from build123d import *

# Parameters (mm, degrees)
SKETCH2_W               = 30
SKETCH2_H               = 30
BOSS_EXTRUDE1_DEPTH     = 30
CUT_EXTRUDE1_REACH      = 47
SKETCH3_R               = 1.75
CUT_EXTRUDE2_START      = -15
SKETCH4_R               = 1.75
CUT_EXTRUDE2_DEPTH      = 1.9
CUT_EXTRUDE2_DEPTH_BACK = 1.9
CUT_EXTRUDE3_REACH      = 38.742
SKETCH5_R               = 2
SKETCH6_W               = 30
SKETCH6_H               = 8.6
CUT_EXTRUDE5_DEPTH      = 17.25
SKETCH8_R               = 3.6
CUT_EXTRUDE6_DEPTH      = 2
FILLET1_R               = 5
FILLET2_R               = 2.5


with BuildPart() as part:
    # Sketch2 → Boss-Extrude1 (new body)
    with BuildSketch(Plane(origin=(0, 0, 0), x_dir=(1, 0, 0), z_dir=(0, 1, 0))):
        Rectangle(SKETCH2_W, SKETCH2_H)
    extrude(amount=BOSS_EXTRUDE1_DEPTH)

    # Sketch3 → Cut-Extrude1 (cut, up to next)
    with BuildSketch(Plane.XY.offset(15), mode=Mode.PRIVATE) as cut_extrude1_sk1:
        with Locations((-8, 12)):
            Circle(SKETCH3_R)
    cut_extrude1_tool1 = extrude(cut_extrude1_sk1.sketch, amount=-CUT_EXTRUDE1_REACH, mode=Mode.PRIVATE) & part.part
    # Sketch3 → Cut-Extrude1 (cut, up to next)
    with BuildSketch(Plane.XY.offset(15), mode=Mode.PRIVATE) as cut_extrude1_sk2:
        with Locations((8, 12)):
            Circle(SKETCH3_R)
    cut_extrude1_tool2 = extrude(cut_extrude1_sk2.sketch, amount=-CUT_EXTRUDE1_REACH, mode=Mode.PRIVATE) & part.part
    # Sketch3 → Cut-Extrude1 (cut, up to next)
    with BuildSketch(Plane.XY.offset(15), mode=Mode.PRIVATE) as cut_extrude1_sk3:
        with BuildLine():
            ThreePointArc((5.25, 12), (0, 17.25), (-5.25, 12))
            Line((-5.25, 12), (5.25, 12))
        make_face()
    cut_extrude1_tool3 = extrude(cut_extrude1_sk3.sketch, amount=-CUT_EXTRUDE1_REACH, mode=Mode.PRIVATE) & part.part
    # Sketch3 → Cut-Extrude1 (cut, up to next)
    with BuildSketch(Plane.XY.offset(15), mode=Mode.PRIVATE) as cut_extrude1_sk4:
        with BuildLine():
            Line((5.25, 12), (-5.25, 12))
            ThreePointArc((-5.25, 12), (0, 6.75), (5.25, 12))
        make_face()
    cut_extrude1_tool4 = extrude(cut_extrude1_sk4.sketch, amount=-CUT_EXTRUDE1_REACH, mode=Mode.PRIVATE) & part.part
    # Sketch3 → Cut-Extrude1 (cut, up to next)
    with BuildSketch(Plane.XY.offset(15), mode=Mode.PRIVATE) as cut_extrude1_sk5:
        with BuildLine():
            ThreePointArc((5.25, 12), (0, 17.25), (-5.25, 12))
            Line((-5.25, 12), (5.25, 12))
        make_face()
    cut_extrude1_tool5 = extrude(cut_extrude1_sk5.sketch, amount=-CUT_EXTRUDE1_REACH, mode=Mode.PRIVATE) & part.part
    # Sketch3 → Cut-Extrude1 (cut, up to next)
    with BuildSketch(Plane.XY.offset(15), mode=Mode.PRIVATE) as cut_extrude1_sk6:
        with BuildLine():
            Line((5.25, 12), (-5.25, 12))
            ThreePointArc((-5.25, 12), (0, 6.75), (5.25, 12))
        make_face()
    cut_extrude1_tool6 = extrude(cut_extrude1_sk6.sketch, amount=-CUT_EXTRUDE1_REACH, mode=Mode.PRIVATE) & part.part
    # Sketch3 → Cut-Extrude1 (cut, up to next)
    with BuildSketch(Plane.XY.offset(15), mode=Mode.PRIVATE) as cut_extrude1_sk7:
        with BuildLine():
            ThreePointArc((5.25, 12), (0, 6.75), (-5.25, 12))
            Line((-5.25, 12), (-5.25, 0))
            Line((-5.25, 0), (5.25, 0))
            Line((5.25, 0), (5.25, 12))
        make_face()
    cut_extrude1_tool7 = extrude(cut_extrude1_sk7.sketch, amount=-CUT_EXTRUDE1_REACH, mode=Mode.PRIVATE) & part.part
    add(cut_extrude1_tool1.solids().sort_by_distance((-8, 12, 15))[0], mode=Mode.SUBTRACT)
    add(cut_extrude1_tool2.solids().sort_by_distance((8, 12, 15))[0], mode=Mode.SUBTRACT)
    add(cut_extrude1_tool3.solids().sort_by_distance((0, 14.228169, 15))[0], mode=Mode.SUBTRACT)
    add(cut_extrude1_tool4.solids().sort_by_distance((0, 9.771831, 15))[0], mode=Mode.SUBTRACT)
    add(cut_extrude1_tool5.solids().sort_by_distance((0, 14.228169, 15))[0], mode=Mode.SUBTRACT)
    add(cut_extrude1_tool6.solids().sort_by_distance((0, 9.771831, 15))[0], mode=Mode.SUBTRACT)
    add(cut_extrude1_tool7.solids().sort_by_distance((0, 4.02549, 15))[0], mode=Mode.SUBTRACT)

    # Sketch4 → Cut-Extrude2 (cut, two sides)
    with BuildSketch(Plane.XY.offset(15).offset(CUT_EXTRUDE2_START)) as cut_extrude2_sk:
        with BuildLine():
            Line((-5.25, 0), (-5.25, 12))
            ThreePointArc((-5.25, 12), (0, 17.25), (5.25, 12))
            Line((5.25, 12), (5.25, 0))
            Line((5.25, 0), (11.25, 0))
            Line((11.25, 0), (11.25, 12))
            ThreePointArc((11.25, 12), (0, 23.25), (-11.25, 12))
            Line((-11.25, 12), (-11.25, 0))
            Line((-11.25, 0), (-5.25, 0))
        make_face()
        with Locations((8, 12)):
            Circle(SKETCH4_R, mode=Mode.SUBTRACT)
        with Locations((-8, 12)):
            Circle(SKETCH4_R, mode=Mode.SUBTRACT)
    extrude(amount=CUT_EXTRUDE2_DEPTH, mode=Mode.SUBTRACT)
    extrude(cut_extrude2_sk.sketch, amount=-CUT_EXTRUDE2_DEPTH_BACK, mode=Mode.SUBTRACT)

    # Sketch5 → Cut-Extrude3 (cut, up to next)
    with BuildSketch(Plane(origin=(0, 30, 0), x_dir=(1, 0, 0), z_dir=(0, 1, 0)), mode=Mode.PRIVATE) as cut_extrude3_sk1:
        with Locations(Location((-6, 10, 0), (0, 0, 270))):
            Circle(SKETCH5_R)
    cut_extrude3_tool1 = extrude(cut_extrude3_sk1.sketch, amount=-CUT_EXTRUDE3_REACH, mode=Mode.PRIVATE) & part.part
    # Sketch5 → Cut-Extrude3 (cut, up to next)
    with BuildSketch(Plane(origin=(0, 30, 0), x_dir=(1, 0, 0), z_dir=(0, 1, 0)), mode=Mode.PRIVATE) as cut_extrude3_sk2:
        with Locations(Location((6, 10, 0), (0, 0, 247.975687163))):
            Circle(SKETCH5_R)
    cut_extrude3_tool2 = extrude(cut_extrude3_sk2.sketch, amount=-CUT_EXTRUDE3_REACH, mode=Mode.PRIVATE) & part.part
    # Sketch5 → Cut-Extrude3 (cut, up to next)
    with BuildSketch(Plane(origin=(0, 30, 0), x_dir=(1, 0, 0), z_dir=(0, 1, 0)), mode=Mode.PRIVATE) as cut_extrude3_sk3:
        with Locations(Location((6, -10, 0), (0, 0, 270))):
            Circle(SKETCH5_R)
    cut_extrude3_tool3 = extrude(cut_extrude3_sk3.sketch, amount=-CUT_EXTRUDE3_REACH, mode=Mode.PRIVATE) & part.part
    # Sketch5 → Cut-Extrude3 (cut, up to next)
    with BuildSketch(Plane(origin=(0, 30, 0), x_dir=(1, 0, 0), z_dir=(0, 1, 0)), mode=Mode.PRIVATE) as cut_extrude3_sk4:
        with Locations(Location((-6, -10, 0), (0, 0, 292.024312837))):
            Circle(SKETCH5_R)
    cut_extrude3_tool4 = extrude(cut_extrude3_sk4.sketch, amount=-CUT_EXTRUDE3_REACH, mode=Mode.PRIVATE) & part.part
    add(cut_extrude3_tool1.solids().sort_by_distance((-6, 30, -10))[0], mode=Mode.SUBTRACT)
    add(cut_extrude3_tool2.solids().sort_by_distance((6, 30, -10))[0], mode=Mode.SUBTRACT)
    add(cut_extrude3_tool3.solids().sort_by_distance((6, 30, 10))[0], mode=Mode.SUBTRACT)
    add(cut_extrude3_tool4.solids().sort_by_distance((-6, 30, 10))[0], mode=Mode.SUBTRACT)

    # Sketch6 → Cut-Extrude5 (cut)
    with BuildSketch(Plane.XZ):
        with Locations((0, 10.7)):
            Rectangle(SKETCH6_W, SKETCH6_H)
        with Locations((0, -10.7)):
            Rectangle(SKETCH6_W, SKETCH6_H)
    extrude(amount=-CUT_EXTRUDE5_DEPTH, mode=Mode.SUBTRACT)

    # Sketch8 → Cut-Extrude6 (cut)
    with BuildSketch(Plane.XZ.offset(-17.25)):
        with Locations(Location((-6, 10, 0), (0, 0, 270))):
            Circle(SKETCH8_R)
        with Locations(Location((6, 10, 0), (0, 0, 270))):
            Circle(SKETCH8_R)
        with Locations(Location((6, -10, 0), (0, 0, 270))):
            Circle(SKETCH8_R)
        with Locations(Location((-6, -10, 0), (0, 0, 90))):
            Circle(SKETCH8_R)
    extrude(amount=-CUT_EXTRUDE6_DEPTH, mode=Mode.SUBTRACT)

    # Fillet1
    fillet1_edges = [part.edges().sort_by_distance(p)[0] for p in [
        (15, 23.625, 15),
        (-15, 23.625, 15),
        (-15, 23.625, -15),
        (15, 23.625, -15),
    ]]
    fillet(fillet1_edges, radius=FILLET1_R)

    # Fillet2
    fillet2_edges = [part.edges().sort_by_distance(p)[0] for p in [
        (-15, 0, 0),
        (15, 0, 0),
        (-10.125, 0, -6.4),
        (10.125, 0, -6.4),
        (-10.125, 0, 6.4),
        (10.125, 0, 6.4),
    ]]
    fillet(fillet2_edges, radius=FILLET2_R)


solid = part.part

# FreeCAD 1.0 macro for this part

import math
import FreeCAD as App
import Part
import Sketcher
from FreeCAD import Vector
Q = App.Units.Quantity


def edges_at(feature, points):
    """Names of the edges that pass closest to the given points."""
    edges = feature.Shape.Edges
    near = lambda p: min(range(len(edges)), key=lambda i: edges[i].distToShape(Part.Vertex(*p))[0])
    return sorted({f"Edge{near(p) + 1}" for p in points})


def add_polygon(sketch, points):
    """Adds a closed chain of lines whose ends are joined by coincident constraints."""
    first, n = sketch.GeometryCount, len(points)
    for a, b in zip(points, points[1:] + points[:1]):
        sketch.addGeometry(Part.LineSegment(App.Vector(*a, 0), App.Vector(*b, 0)), False)
    for i in range(n):
        sketch.addConstraint(Sketcher.Constraint("Coincident", first + i, 2, first + (i + 1) % n, 1))

doc = App.newDocument("Part")
body = doc.addObject("PartDesign::Body", "Body")

# Sketch on XZ plane
sketch1 = doc.addObject("Sketcher::SketchObject", "Sketch")
body.addObject(sketch1)
sketch1.AttachmentSupport = (doc.XZ_Plane, [""])
sketch1.MapMode = "FlatFace"
add_polygon(sketch1, [(-15, -15), (-15, 15), (15, 15), (15, -15)])  # lines 0-3
sketch1.addConstraint([
    Sketcher.Constraint("Vertical", 0),
    Sketcher.Constraint("Horizontal", 1),
    Sketcher.Constraint("Vertical", 2),
    Sketcher.Constraint("Horizontal", 3),
    Sketcher.Constraint("Symmetric", 0, 2, 2, 2, -1, 1),
    Sketcher.Constraint("Equal", 3, 0),
    Sketcher.Constraint("DistanceX", 1, 1, 1, 2, Q("30 mm")),
])
pad1 = doc.addObject("PartDesign::Pad", "Pad")
body.addObject(pad1)
pad1.Profile = sketch1
pad1.Length = 30
pad1.Reversed = True

# Sketch on XY plane
sketch2 = doc.addObject("Sketcher::SketchObject", "Sketch001")
body.addObject(sketch2)
sketch2.AttachmentSupport = (doc.XY_Plane, [""])
sketch2.MapMode = "FlatFace"
sketch2.AttachmentOffset = App.Placement(Vector(0, 0, 15), App.Rotation())
sketch2.addGeometry(Part.Circle(Vector(-8, 12, 0), Vector(0, 0, 1), 1.8), False)
sketch2.addConstraint([
    Sketcher.Constraint("Diameter", 0, Q("3.5 mm")),
    Sketcher.Constraint("DistanceX", 0, 3, -1, 1, Q("8 mm")),
    Sketcher.Constraint("DistanceY", -1, 1, 0, 3, Q("12 mm")),
])
pocket1 = doc.addObject("PartDesign::Pocket", "Pocket")
body.addObject(pocket1)
pocket1.Profile = sketch2
pocket1.Type = "UpToFirst"

# Sketch on XY plane
sketch3 = doc.addObject("Sketcher::SketchObject", "Sketch002")
body.addObject(sketch3)
sketch3.AttachmentSupport = (doc.XY_Plane, [""])
sketch3.MapMode = "FlatFace"
sketch3.AttachmentOffset = App.Placement(Vector(0, 0, 15), App.Rotation())
sketch3.addGeometry(Part.Circle(Vector(8, 12, 0), Vector(0, 0, 1), 1.8), False)
sketch3.addConstraint([
    Sketcher.Constraint("Diameter", 0, Q("3.5 mm")),
    Sketcher.Constraint("DistanceX", -1, 1, 0, 3, Q("8 mm")),
    Sketcher.Constraint("DistanceY", -1, 1, 0, 3, Q("12 mm")),
])
pocket2 = doc.addObject("PartDesign::Pocket", "Pocket001")
body.addObject(pocket2)
pocket2.Profile = sketch3
pocket2.Type = "UpToFirst"

# Sketch on XY plane
sketch4 = doc.addObject("Sketcher::SketchObject", "Sketch003")
body.addObject(sketch4)
sketch4.AttachmentSupport = (doc.XY_Plane, [""])
sketch4.MapMode = "FlatFace"
sketch4.AttachmentOffset = App.Placement(Vector(0, 0, 15), App.Rotation())
sketch4.addGeometry([
    Part.ArcOfCircle(Part.Circle(Vector(0, 12, 0), Vector(0, 0, 1), 5), math.radians(0), math.radians(180)),
    Part.LineSegment(Vector(-5, 12, 0), Vector(5, 12, 0)),
], False)
sketch4.addConstraint([
    Sketcher.Constraint("Coincident", 0, 1, 1, 2),
    Sketcher.Constraint("Coincident", 1, 1, 0, 2),
    Sketcher.Constraint("Horizontal", 1),
    Sketcher.Constraint("PointOnObject", 0, 3, -2),
    Sketcher.Constraint("Radius", 0, Q("5.25 mm")),
    Sketcher.Constraint("DistanceY", -1, 1, 0, 3, Q("12 mm")),
    Sketcher.Constraint("DistanceY", -1, 1, 0, 1, Q("12 mm")),
])
pocket3 = doc.addObject("PartDesign::Pocket", "Pocket002")
body.addObject(pocket3)
pocket3.Profile = sketch4
pocket3.Type = "UpToFirst"

# Sketch on XY plane
sketch5 = doc.addObject("Sketcher::SketchObject", "Sketch004")
body.addObject(sketch5)
sketch5.AttachmentSupport = (doc.XY_Plane, [""])
sketch5.MapMode = "FlatFace"
sketch5.AttachmentOffset = App.Placement(Vector(0, 0, 15), App.Rotation())
sketch5.addGeometry([
    Part.LineSegment(Vector(5, 12, 0), Vector(-5, 12, 0)),
    Part.ArcOfCircle(Part.Circle(Vector(0, 12, 0), Vector(0, 0, 1), 5), math.radians(180), math.radians(360)),
], False)
sketch5.addConstraint([
    Sketcher.Constraint("Coincident", 0, 1, 1, 2),
    Sketcher.Constraint("Coincident", 1, 1, 0, 2),
    Sketcher.Constraint("Horizontal", 0),
    Sketcher.Constraint("PointOnObject", 1, 3, -2),
    Sketcher.Constraint("Horizontal", 1, 3, 0, 1),
    Sketcher.Constraint("Radius", 1, Q("5.25 mm")),
    Sketcher.Constraint("DistanceY", -1, 1, 1, 3, Q("12 mm")),
])
pocket4 = doc.addObject("PartDesign::Pocket", "Pocket003")
body.addObject(pocket4)
pocket4.Profile = sketch5
pocket4.Type = "UpToFirst"

# Sketch on XY plane
sketch6 = doc.addObject("Sketcher::SketchObject", "Sketch005")
body.addObject(sketch6)
sketch6.AttachmentSupport = (doc.XY_Plane, [""])
sketch6.MapMode = "FlatFace"
sketch6.AttachmentOffset = App.Placement(Vector(0, 0, 15), App.Rotation())
sketch6.addGeometry([
    Part.ArcOfCircle(Part.Circle(Vector(0, 12, 0), Vector(0, 0, 1), 5), math.radians(0), math.radians(180)),
    Part.LineSegment(Vector(-5, 12, 0), Vector(5, 12, 0)),
], False)
sketch6.addConstraint([
    Sketcher.Constraint("Coincident", 0, 1, 1, 2),
    Sketcher.Constraint("Coincident", 1, 1, 0, 2),
    Sketcher.Constraint("Horizontal", 1),
    Sketcher.Constraint("PointOnObject", 0, 3, -2),
    Sketcher.Constraint("Radius", 0, Q("5.25 mm")),
    Sketcher.Constraint("DistanceY", -1, 1, 0, 3, Q("12 mm")),
    Sketcher.Constraint("DistanceY", -1, 1, 0, 1, Q("12 mm")),
])
pocket5 = doc.addObject("PartDesign::Pocket", "Pocket004")
body.addObject(pocket5)
pocket5.Profile = sketch6
pocket5.Length = 30

# Sketch on XY plane
sketch7 = doc.addObject("Sketcher::SketchObject", "Sketch006")
body.addObject(sketch7)
sketch7.AttachmentSupport = (doc.XY_Plane, [""])
sketch7.MapMode = "FlatFace"
sketch7.AttachmentOffset = App.Placement(Vector(0, 0, 15), App.Rotation())
sketch7.addGeometry([
    Part.LineSegment(Vector(5, 12, 0), Vector(-5, 12, 0)),
    Part.ArcOfCircle(Part.Circle(Vector(0, 12, 0), Vector(0, 0, 1), 5), math.radians(180), math.radians(360)),
], False)
sketch7.addConstraint([
    Sketcher.Constraint("Coincident", 0, 1, 1, 2),
    Sketcher.Constraint("Coincident", 1, 1, 0, 2),
    Sketcher.Constraint("Horizontal", 0),
    Sketcher.Constraint("PointOnObject", 1, 3, -2),
    Sketcher.Constraint("Horizontal", 1, 3, 0, 1),
    Sketcher.Constraint("Radius", 1, Q("5.25 mm")),
    Sketcher.Constraint("DistanceY", -1, 1, 1, 3, Q("12 mm")),
])
pocket6 = doc.addObject("PartDesign::Pocket", "Pocket005")
body.addObject(pocket6)
pocket6.Profile = sketch7
pocket6.Length = 30

# Sketch on XY plane
sketch8 = doc.addObject("Sketcher::SketchObject", "Sketch007")
body.addObject(sketch8)
sketch8.AttachmentSupport = (doc.XY_Plane, [""])
sketch8.MapMode = "FlatFace"
sketch8.AttachmentOffset = App.Placement(Vector(0, 0, 15), App.Rotation())
sketch8.addGeometry([
    Part.ArcOfCircle(Part.Circle(Vector(0, 12, 0), Vector(0, 0, 1), 5), math.radians(180), math.radians(360)),
    Part.LineSegment(Vector(-5, 12, 0), Vector(-5, 0, 0)),
    Part.LineSegment(Vector(-5, 0, 0), Vector(5, 0, 0)),
    Part.LineSegment(Vector(5, 0, 0), Vector(5, 12, 0)),
], False)
sketch8.addConstraint([
    Sketcher.Constraint("Tangent", 0, 1, 1, 1),
    Sketcher.Constraint("Coincident", 1, 2, 2, 1),
    Sketcher.Constraint("Coincident", 2, 2, 3, 1),
    Sketcher.Constraint("Tangent", 3, 2, 0, 2),
    Sketcher.Constraint("Vertical", 1),
    Sketcher.Constraint("Horizontal", 2),
    Sketcher.Constraint("Vertical", 3),
    Sketcher.Constraint("Symmetric", 1, 2, 2, 2, -1, 1),
    Sketcher.Constraint("DistanceY", 1, 2, 1, 1, Q("12 mm")),
    Sketcher.Constraint("Radius", 0, Q("5.25 mm")),
])
pocket7 = doc.addObject("PartDesign::Pocket", "Pocket006")
body.addObject(pocket7)
pocket7.Profile = sketch8
pocket7.Type = "UpToFirst"

# Sketch on XY plane
sketch9 = doc.addObject("Sketcher::SketchObject", "Sketch008")
body.addObject(sketch9)
sketch9.AttachmentSupport = (doc.XY_Plane, [""])
sketch9.MapMode = "FlatFace"
sketch9.addGeometry([
    Part.LineSegment(Vector(-5.2, 0, 0), Vector(-5.2, 12, 0)),  # 0
    Part.ArcOfCircle(Part.Circle(Vector(0, 12, 0), Vector(0, 0, 1), 5.2), math.radians(0), math.radians(180)),  # 1
    Part.LineSegment(Vector(5.2, 12, 0), Vector(5.2, 0, 0)),  # 2
    Part.LineSegment(Vector(5.2, 0, 0), Vector(11.2, 0, 0)),  # 3
    Part.LineSegment(Vector(11.2, 0, 0), Vector(11.2, 12, 0)),  # 4
    Part.ArcOfCircle(Part.Circle(Vector(0, 12, 0), Vector(0, 0, 1), 11.2), math.radians(0), math.radians(180)),  # 5
    Part.LineSegment(Vector(-11.2, 12, 0), Vector(-11.2, 0, 0)),  # 6
    Part.LineSegment(Vector(-11.2, 0, 0), Vector(-5.2, 0, 0)),  # 7
    Part.Circle(Vector(-8, 12, 0), Vector(0, 0, 1), 1.8),  # 8
    Part.Circle(Vector(8, 12, 0), Vector(0, 0, 1), 1.8),  # 9
], False)
sketch9.addConstraint([
    Sketcher.Constraint("Tangent", 0, 2, 1, 2),
    Sketcher.Constraint("Tangent", 1, 1, 2, 1),
    Sketcher.Constraint("Coincident", 2, 2, 3, 1),
    Sketcher.Constraint("Coincident", 3, 2, 4, 1),
    Sketcher.Constraint("Tangent", 4, 2, 5, 1),
    Sketcher.Constraint("Tangent", 5, 2, 6, 1),
    Sketcher.Constraint("Coincident", 6, 2, 7, 1),
    Sketcher.Constraint("Coincident", 7, 2, 0, 1),
    Sketcher.Constraint("Vertical", 0),
    Sketcher.Constraint("Vertical", 2),
    Sketcher.Constraint("Horizontal", 3),
    Sketcher.Constraint("Vertical", 4),
    Sketcher.Constraint("Vertical", 6),
    Sketcher.Constraint("Horizontal", 7),
    Sketcher.Constraint("Coincident", 5, 3, 1, 3),
    Sketcher.Constraint("Equal", 8, 9),
    Sketcher.Constraint("Symmetric", 3, 2, 6, 2, -1, 1),
    Sketcher.Constraint("Symmetric", 8, 3, 9, 3, -2),
    Sketcher.Constraint("PointOnObject", 2, 2, -1),
    Sketcher.Constraint("Horizontal", 5, 3, 8, 3),
    Sketcher.Constraint("Diameter", 8, Q("3.5 mm")),
    Sketcher.Constraint("DistanceX", 3, 1, 3, 2, Q("6 mm")),
    Sketcher.Constraint("DistanceY", 0, 1, 0, 2, Q("12 mm")),
    Sketcher.Constraint("Radius", 1, Q("5.25 mm")),
    Sketcher.Constraint("DistanceX", 8, 3, -1, 1, Q("8 mm")),
])
pocket8 = doc.addObject("PartDesign::Pocket", "Pocket007")
body.addObject(pocket8)
pocket8.Profile = sketch9
pocket8.Type = "TwoLengths"
pocket8.Length = 1.9
pocket8.Length2 = 1.9
pocket8.Reversed = True

# Sketch on XZ plane
sketch10 = doc.addObject("Sketcher::SketchObject", "Sketch009")
body.addObject(sketch10)
sketch10.AttachmentSupport = (doc.XZ_Plane, [""])
sketch10.MapMode = "FlatFace"
sketch10.AttachmentOffset = App.Placement(Vector(0, 0, -30), App.Rotation())
sketch10.addGeometry(Part.Circle(Vector(-6, -10, 0), Vector(0, 0, 1), 2), False)
sketch10.addConstraint([
    Sketcher.Constraint("Diameter", 0, Q("4 mm")),
    Sketcher.Constraint("DistanceX", 0, 3, -1, 1, Q("6 mm")),
    Sketcher.Constraint("DistanceY", 0, 3, -1, 1, Q("10 mm")),
])
pocket9 = doc.addObject("PartDesign::Pocket", "Pocket008")
body.addObject(pocket9)
pocket9.Profile = sketch10
pocket9.Type = "UpToFirst"
pocket9.Reversed = True

# Sketch on XZ plane
sketch11 = doc.addObject("Sketcher::SketchObject", "Sketch010")
body.addObject(sketch11)
sketch11.AttachmentSupport = (doc.XZ_Plane, [""])
sketch11.MapMode = "FlatFace"
sketch11.AttachmentOffset = App.Placement(Vector(0, 0, -30), App.Rotation())
sketch11.addGeometry(Part.Circle(Vector(6, -10, 0), Vector(0, 0, 1), 2), False)
sketch11.addConstraint([
    Sketcher.Constraint("Diameter", 0, Q("4 mm")),
    Sketcher.Constraint("DistanceX", -1, 1, 0, 3, Q("6 mm")),
    Sketcher.Constraint("DistanceY", 0, 3, -1, 1, Q("10 mm")),
])
pocket10 = doc.addObject("PartDesign::Pocket", "Pocket009")
body.addObject(pocket10)
pocket10.Profile = sketch11
pocket10.Type = "UpToFirst"
pocket10.Reversed = True

# Sketch on XZ plane
sketch12 = doc.addObject("Sketcher::SketchObject", "Sketch011")
body.addObject(sketch12)
sketch12.AttachmentSupport = (doc.XZ_Plane, [""])
sketch12.MapMode = "FlatFace"
sketch12.AttachmentOffset = App.Placement(Vector(0, 0, -30), App.Rotation())
sketch12.addGeometry(Part.Circle(Vector(6, 10, 0), Vector(0, 0, 1), 2), False)
sketch12.addConstraint([
    Sketcher.Constraint("Diameter", 0, Q("4 mm")),
    Sketcher.Constraint("DistanceX", -1, 1, 0, 3, Q("6 mm")),
    Sketcher.Constraint("DistanceY", -1, 1, 0, 3, Q("10 mm")),
])
pocket11 = doc.addObject("PartDesign::Pocket", "Pocket010")
body.addObject(pocket11)
pocket11.Profile = sketch12
pocket11.Type = "UpToFirst"
pocket11.Reversed = True

# Sketch on XZ plane
sketch13 = doc.addObject("Sketcher::SketchObject", "Sketch012")
body.addObject(sketch13)
sketch13.AttachmentSupport = (doc.XZ_Plane, [""])
sketch13.MapMode = "FlatFace"
sketch13.AttachmentOffset = App.Placement(Vector(0, 0, -30), App.Rotation())
sketch13.addGeometry(Part.Circle(Vector(-6, 10, 0), Vector(0, 0, 1), 2), False)
sketch13.addConstraint([
    Sketcher.Constraint("Diameter", 0, Q("4 mm")),
    Sketcher.Constraint("DistanceX", 0, 3, -1, 1, Q("6 mm")),
    Sketcher.Constraint("DistanceY", -1, 1, 0, 3, Q("10 mm")),
])
pocket12 = doc.addObject("PartDesign::Pocket", "Pocket011")
body.addObject(pocket12)
pocket12.Profile = sketch13
pocket12.Type = "UpToFirst"
pocket12.Reversed = True

# Sketch on XZ plane
sketch14 = doc.addObject("Sketcher::SketchObject", "Sketch013")
body.addObject(sketch14)
sketch14.AttachmentSupport = (doc.XZ_Plane, [""])
sketch14.MapMode = "FlatFace"
add_polygon(sketch14, [(-15, 15), (-15, 6), (15, 6), (15, 15)])  # lines 0-3
add_polygon(sketch14, [(-15, -6), (-15, -15), (15, -15), (15, -6)])  # lines 4-7
sketch14.addConstraint([
    Sketcher.Constraint("Vertical", 0),
    Sketcher.Constraint("Horizontal", 1),
    Sketcher.Constraint("Vertical", 2),
    Sketcher.Constraint("Horizontal", 3),
    Sketcher.Constraint("Vertical", 4),
    Sketcher.Constraint("Horizontal", 5),
    Sketcher.Constraint("Vertical", 6),
    Sketcher.Constraint("Horizontal", 7),
    Sketcher.Constraint("Symmetric", 2, 2, 4, 2, -1, 1),
    Sketcher.Constraint("Symmetric", 0, 2, 6, 2, -1, 1),
    Sketcher.Constraint("Vertical", 3, 2, 4, 2),
    Sketcher.Constraint("DistanceX", 1, 1, 1, 2, Q("30 mm")),
    Sketcher.Constraint("DistanceY", 0, 2, 0, 1, Q("8.6 mm")),
    Sketcher.Constraint("DistanceY", -1, 1, 2, 2, Q("15 mm")),
])
pocket13 = doc.addObject("PartDesign::Pocket", "Pocket012")
body.addObject(pocket13)
pocket13.Profile = sketch14
pocket13.Length = 17.25

# Sketch on XZ plane
sketch15 = doc.addObject("Sketcher::SketchObject", "Sketch014")
body.addObject(sketch15)
sketch15.AttachmentSupport = (doc.XZ_Plane, [""])
sketch15.MapMode = "FlatFace"
sketch15.AttachmentOffset = App.Placement(Vector(0, 0, -17.25), App.Rotation())
sketch15.addGeometry([
    Part.Circle(Vector(-6, 10, 0), Vector(0, 0, 1), 3.6),
    Part.Circle(Vector(6, 10, 0), Vector(0, 0, 1), 3.6),
    Part.Circle(Vector(6, -10, 0), Vector(0, 0, 1), 3.6),
    Part.Circle(Vector(-6, -10, 0), Vector(0, 0, 1), 3.6),
], False)
sketch15.addConstraint([
    Sketcher.Constraint("Equal", 0, 1),
    Sketcher.Constraint("Equal", 1, 2),
    Sketcher.Constraint("Equal", 2, 3),
    Sketcher.Constraint("Symmetric", 0, 3, 2, 3, -1, 1),
    Sketcher.Constraint("Symmetric", 1, 3, 3, 3, -1, 1),
    Sketcher.Constraint("Symmetric", 0, 3, 1, 3, -2),
    Sketcher.Constraint("Diameter", 0, Q("7.2 mm")),
    Sketcher.Constraint("DistanceX", 0, 3, -1, 1, Q("6 mm")),
    Sketcher.Constraint("DistanceY", -1, 1, 0, 3, Q("10 mm")),
])
pocket14 = doc.addObject("PartDesign::Pocket", "Pocket013")
body.addObject(pocket14)
pocket14.Profile = sketch15
pocket14.Length = 2
doc.recompute()

fillet = doc.addObject("PartDesign::Fillet", "Fillet")
body.addObject(fillet)
fillet.Base = (pocket14, edges_at(pocket14, [
    (15, 23.625, 15),
    (-15, 23.625, 15),
    (-15, 23.625, -15),
    (15, 23.625, -15),
]))
fillet.Radius = 5
doc.recompute()

fillet2 = doc.addObject("PartDesign::Fillet", "Fillet001")
body.addObject(fillet2)
fillet2.Base = (fillet, edges_at(fillet, [
    (-15, 0, 0),
    (15, 0, 0),
    (-10.125, 0, -6.4),
    (10.125, 0, -6.4),
    (-10.125, 0, 6.4),
    (10.125, 0, 6.4),
]))
fillet2.Radius = 2.5

doc.recompute()
